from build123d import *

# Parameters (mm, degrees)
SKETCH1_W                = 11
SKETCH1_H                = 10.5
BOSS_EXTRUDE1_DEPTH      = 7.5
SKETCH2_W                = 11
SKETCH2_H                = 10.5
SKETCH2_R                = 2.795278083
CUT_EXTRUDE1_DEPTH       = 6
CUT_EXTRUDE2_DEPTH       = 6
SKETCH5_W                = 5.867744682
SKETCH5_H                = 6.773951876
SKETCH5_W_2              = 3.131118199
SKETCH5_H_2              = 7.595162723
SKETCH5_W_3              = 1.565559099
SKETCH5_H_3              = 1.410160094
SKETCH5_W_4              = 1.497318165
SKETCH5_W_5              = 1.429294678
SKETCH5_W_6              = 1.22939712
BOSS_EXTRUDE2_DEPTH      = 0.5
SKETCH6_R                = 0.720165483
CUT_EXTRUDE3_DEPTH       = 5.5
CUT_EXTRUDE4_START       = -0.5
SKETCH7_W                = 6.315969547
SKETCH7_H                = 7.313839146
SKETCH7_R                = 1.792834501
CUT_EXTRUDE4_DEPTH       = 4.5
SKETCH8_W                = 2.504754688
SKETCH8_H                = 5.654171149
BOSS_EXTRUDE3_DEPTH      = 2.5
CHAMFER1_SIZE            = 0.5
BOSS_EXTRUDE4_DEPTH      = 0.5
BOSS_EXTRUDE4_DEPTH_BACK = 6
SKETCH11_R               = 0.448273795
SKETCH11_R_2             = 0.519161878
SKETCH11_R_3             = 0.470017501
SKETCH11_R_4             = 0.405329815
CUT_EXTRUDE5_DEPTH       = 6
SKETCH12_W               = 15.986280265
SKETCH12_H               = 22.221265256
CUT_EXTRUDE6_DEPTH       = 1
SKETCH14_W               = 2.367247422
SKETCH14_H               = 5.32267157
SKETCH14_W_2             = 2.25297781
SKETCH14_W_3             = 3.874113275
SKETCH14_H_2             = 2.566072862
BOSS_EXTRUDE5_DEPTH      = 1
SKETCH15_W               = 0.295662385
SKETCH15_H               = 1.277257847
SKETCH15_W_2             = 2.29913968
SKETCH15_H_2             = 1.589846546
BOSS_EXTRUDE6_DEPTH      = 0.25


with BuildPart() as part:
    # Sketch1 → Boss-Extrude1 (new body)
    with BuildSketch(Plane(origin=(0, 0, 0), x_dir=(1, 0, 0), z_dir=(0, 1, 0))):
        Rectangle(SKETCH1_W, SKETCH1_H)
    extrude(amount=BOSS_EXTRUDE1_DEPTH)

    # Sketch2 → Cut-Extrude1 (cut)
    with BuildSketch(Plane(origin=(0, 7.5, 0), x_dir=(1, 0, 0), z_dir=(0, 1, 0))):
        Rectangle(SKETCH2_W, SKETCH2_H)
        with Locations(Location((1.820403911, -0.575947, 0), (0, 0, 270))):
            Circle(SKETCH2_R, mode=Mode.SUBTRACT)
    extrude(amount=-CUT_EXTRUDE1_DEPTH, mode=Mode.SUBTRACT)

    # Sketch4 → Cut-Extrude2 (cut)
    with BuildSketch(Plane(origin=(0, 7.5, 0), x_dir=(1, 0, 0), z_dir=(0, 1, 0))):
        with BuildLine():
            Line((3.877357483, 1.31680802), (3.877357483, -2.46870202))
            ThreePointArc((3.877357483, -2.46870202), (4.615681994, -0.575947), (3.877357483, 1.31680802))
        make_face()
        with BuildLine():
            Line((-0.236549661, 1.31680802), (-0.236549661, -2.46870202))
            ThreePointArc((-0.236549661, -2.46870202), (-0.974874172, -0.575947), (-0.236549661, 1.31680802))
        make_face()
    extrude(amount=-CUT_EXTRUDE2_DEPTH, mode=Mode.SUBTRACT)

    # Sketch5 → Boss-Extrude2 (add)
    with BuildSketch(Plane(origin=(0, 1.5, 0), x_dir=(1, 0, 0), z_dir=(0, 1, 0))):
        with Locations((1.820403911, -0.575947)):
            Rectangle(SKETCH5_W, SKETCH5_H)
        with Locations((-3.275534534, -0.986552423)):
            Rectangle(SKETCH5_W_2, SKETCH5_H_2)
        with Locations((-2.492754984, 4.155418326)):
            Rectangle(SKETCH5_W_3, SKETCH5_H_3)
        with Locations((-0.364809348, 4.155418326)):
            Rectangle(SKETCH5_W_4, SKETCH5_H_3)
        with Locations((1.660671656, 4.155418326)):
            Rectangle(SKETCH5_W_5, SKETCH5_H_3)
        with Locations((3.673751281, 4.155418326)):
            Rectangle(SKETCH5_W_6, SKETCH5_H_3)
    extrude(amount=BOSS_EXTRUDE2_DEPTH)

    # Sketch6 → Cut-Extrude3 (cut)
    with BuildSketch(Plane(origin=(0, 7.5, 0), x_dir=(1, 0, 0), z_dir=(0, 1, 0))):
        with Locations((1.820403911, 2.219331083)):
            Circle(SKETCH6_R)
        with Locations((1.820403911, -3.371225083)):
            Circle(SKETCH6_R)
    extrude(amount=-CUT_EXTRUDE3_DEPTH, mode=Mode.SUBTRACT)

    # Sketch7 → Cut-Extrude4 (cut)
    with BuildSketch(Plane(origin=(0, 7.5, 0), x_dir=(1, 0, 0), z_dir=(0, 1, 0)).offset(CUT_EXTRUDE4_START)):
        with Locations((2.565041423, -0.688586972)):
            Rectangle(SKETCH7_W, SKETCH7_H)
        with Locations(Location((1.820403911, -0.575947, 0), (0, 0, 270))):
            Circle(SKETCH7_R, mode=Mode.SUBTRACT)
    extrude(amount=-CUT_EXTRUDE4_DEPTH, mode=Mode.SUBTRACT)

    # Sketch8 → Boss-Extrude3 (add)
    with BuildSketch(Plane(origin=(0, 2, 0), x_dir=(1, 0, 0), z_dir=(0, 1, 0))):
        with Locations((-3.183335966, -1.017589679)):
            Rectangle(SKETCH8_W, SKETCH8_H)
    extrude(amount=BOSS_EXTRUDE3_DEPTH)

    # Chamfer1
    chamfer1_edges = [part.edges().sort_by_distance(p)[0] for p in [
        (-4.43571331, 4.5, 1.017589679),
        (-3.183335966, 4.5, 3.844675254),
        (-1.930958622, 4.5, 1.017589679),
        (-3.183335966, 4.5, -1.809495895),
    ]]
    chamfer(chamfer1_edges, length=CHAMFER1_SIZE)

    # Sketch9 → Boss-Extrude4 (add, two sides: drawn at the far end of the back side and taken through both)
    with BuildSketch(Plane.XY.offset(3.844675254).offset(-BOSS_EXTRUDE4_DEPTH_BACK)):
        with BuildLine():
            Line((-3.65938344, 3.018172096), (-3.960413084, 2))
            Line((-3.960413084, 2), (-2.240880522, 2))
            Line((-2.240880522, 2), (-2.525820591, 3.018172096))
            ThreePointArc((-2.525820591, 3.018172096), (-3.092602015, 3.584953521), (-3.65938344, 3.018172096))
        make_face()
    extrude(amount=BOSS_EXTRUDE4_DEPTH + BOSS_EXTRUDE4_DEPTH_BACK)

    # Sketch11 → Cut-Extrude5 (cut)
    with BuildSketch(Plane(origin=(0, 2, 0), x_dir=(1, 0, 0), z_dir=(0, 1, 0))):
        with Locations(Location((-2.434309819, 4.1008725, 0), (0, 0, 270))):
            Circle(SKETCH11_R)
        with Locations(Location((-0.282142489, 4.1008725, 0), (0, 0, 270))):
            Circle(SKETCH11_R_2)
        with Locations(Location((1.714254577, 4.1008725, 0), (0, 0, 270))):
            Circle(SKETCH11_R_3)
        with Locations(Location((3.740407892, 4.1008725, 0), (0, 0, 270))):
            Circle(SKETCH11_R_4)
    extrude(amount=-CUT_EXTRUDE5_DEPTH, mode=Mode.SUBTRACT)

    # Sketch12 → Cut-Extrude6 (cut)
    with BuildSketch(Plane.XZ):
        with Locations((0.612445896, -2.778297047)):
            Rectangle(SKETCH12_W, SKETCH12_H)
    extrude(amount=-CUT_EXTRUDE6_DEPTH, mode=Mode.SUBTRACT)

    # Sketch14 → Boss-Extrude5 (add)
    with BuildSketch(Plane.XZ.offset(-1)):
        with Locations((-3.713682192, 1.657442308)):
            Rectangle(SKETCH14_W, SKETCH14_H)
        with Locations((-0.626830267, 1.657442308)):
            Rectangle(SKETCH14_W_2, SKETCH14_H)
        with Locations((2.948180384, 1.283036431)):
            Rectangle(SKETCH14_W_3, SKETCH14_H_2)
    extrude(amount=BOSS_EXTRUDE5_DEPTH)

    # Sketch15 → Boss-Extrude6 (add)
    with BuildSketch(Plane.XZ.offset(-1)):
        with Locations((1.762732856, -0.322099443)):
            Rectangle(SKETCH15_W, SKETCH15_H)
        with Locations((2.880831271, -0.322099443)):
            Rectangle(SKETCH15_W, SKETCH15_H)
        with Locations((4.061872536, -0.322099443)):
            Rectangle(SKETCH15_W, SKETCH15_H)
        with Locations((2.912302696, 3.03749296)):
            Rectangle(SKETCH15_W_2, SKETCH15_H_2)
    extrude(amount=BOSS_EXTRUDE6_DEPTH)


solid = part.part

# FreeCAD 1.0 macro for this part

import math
import FreeCAD as App
import Part
import Sketcher
from FreeCAD import Vector


def edges_at(feature, points):
    """Names of the edges that pass closest to the given points."""
    edges = feature.Shape.Edges
    near = lambda p: min(range(len(edges)), key=lambda i: edges[i].distToShape(Part.Vertex(*p))[0])
    return sorted({f"Edge{near(p) + 1}" for p in points})


def add_polygon(sketch, points):
    """Adds a closed chain of lines whose ends are joined by coincident constraints."""
    first, n = sketch.GeometryCount, len(points)
    for a, b in zip(points, points[1:] + points[:1]):
        sketch.addGeometry(Part.LineSegment(App.Vector(*a, 0), App.Vector(*b, 0)), False)
    for i in range(n):
        sketch.addConstraint(Sketcher.Constraint("Coincident", first + i, 2, first + (i + 1) % n, 1))

doc = App.newDocument("Part")
body = doc.addObject("PartDesign::Body", "Body")

# Sketch on XZ plane
sketch1 = body.newObject("Sketcher::SketchObject", "Sketch")
sketch1.AttachmentSupport = (doc.getObject("XZ_Plane"), [""])
sketch1.MapMode = "FlatFace"
add_polygon(sketch1, [(-5.5, -5.25), (-5.5, 5.25), (5.5, 5.25), (5.5, -5.25)])  # lines 0-3
sketch1.addConstraint(Sketcher.Constraint("Vertical", 0))
sketch1.addConstraint(Sketcher.Constraint("Horizontal", 1))
sketch1.addConstraint(Sketcher.Constraint("Vertical", 2))
sketch1.addConstraint(Sketcher.Constraint("Horizontal", 3))
sketch1.addConstraint(Sketcher.Constraint("Symmetric", 0, 2, 2, 2, -1, 1))
sketch1.addConstraint(Sketcher.Constraint("DistanceX", 1, 1, 1, 2, 11.0))
sketch1.addConstraint(Sketcher.Constraint("DistanceY", 0, 1, 0, 2, 10.5))
pad1 = body.newObject("PartDesign::Pad", "Pad")
pad1.Profile = sketch1
pad1.Length = 7.5
pad1.Reversed = True

# Sketch on XZ plane
sketch2 = body.newObject("Sketcher::SketchObject", "Sketch001")
sketch2.AttachmentSupport = (doc.getObject("XZ_Plane"), [""])
sketch2.MapMode = "FlatFace"
sketch2.AttachmentOffset = App.Placement(Vector(0, 0, -7.5), App.Rotation())
add_polygon(sketch2, [(-5.5, -5.25), (-5.5, 5.25), (5.5, 5.25), (5.5, -5.25)])  # lines 0-3
sketch2.addGeometry(Part.Circle(Vector(1.820404, 0.575947, 0), Vector(0, 0, 1), 2.795278), False)  # 4
sketch2.addConstraint(Sketcher.Constraint("Vertical", 0))
sketch2.addConstraint(Sketcher.Constraint("Horizontal", 1))
sketch2.addConstraint(Sketcher.Constraint("Vertical", 2))
sketch2.addConstraint(Sketcher.Constraint("Horizontal", 3))
sketch2.addConstraint(Sketcher.Constraint("Symmetric", 0, 2, 2, 2, -1, 1))
sketch2.addConstraint(Sketcher.Constraint("DistanceX", 1, 1, 1, 2, 11.0))
sketch2.addConstraint(Sketcher.Constraint("DistanceY", 0, 1, 0, 2, 10.5))
sketch2.addConstraint(Sketcher.Constraint("Diameter", 4, 5.590556))
sketch2.addConstraint(Sketcher.Constraint("DistanceX", -1, 1, 4, 3, 1.820404))
sketch2.addConstraint(Sketcher.Constraint("DistanceY", -1, 1, 4, 3, 0.575947))
pocket1 = body.newObject("PartDesign::Pocket", "Pocket")
pocket1.Profile = sketch2
pocket1.Length = 6
pocket1.Reversed = True

# Sketch on XZ plane
sketch3 = body.newObject("Sketcher::SketchObject", "Sketch002")
sketch3.AttachmentSupport = (doc.getObject("XZ_Plane"), [""])
sketch3.MapMode = "FlatFace"
sketch3.AttachmentOffset = App.Placement(Vector(0, 0, -7.5), App.Rotation())
sketch3.addGeometry(Part.LineSegment(Vector(3.877357, -1.316808, 0), Vector(3.877357, 2.468702, 0)), False)
sketch3.addGeometry(Part.ArcOfCircle(Part.Circle(Vector(1.820404, 0.575947, 0), Vector(0, 0, 1), 2.795278), math.radians(-42.619452), math.radians(42.619452)), False)
sketch3.addGeometry(Part.LineSegment(Vector(-0.23655, 2.468702, 0), Vector(-0.23655, -1.316808, 0)), False)
sketch3.addGeometry(Part.ArcOfCircle(Part.Circle(Vector(1.820404, 0.575947, 0), Vector(0, 0, 1), 2.795278), math.radians(137.380548), math.radians(222.619452)), False)
sketch3.addConstraint(Sketcher.Constraint("Coincident", 0, 1, 1, 1))
sketch3.addConstraint(Sketcher.Constraint("Coincident", 1, 2, 0, 2))
sketch3.addConstraint(Sketcher.Constraint("Coincident", 2, 1, 3, 1))
sketch3.addConstraint(Sketcher.Constraint("Coincident", 3, 2, 2, 2))
sketch3.addConstraint(Sketcher.Constraint("Vertical", 0))
sketch3.addConstraint(Sketcher.Constraint("Vertical", 2))
sketch3.addConstraint(Sketcher.Constraint("Coincident", 3, 3, 1, 3))
sketch3.addConstraint(Sketcher.Constraint("Equal", 1, 3))
sketch3.addConstraint(Sketcher.Constraint("Horizontal", 1, 2, 2, 1))
sketch3.addConstraint(Sketcher.Constraint("Radius", 1, 2.795278))
sketch3.addConstraint(Sketcher.Constraint("DistanceY", 0, 1, 0, 2, 3.78551))
sketch3.addConstraint(Sketcher.Constraint("DistanceY", 0, 1, -1, 1, 1.316808))
sketch3.addConstraint(Sketcher.Constraint("DistanceX", 2, 1, -1, 1, 0.23655))
pocket2 = body.newObject("PartDesign::Pocket", "Pocket001")
pocket2.Profile = sketch3
pocket2.Length = 6
pocket2.Reversed = True

# Sketch on XZ plane
sketch4 = body.newObject("Sketcher::SketchObject", "Sketch003")
sketch4.AttachmentSupport = (doc.getObject("XZ_Plane"), [""])
sketch4.MapMode = "FlatFace"
sketch4.AttachmentOffset = App.Placement(Vector(0, 0, -1.5), App.Rotation())
add_polygon(sketch4, [(-1.113468, -2.811029), (-1.113468, 3.962923), (4.754276, 3.962923), (4.754276, -2.811029)])  # lines 0-3
add_polygon(sketch4, [(-4.841094, -2.811029), (-4.841094, 4.784134), (-1.709975, 4.784134), (-1.709975, -2.811029)])  # lines 4-7
add_polygon(sketch4, [(-3.275535, -4.860498), (-3.275535, -3.450338), (-1.709975, -3.450338), (-1.709975, -4.860498)])  # lines 8-11
add_polygon(sketch4, [(-1.113468, -4.860498), (-1.113468, -3.450338), (0.38385, -3.450338), (0.38385, -4.860498)])  # lines 12-15
add_polygon(sketch4, [(0.946024, -4.860498), (0.946024, -3.450338), (2.375319, -3.450338), (2.375319, -4.860498)])  # lines 16-19
add_polygon(sketch4, [(3.059053, -4.860498), (3.059053, -3.450338), (4.28845, -3.450338), (4.28845, -4.860498)])  # lines 20-23
sketch4.addConstraint(Sketcher.Constraint("Vertical", 0))
sketch4.addConstraint(Sketcher.Constraint("Horizontal", 1))
sketch4.addConstraint(Sketcher.Constraint("Vertical", 2))
sketch4.addConstraint(Sketcher.Constraint("Horizontal", 3))
sketch4.addConstraint(Sketcher.Constraint("Vertical", 4))
sketch4.addConstraint(Sketcher.Constraint("Horizontal", 5))
sketch4.addConstraint(Sketcher.Constraint("Vertical", 6))
sketch4.addConstraint(Sketcher.Constraint("Horizontal", 7))
sketch4.addConstraint(Sketcher.Constraint("Vertical", 8))
sketch4.addConstraint(Sketcher.Constraint("Horizontal", 9))
sketch4.addConstraint(Sketcher.Constraint("Vertical", 10))
sketch4.addConstraint(Sketcher.Constraint("Horizontal", 11))
sketch4.addConstraint(Sketcher.Constraint("Vertical", 12))
sketch4.addConstraint(Sketcher.Constraint("Horizontal", 13))
sketch4.addConstraint(Sketcher.Constraint("Vertical", 14))
sketch4.addConstraint(Sketcher.Constraint("Horizontal", 15))
sketch4.addConstraint(Sketcher.Constraint("Vertical", 16))
sketch4.addConstraint(Sketcher.Constraint("Horizontal", 17))
sketch4.addConstraint(Sketcher.Constraint("Vertical", 18))
sketch4.addConstraint(Sketcher.Constraint("Horizontal", 19))
sketch4.addConstraint(Sketcher.Constraint("Vertical", 20))
sketch4.addConstraint(Sketcher.Constraint("Horizontal", 21))
sketch4.addConstraint(Sketcher.Constraint("Vertical", 22))
sketch4.addConstraint(Sketcher.Constraint("Horizontal", 23))
sketch4.addConstraint(Sketcher.Constraint("Horizontal", 3, 2, 6, 2))
sketch4.addConstraint(Sketcher.Constraint("Horizontal", 9, 2, 12, 2))
sketch4.addConstraint(Sketcher.Constraint("Horizontal", 11, 2, 14, 2))
sketch4.addConstraint(Sketcher.Constraint("Horizontal", 13, 2, 16, 2))
sketch4.addConstraint(Sketcher.Constraint("Horizontal", 15, 2, 18, 2))
sketch4.addConstraint(Sketcher.Constraint("Horizontal", 17, 2, 20, 2))
sketch4.addConstraint(Sketcher.Constraint("Horizontal", 19, 2, 22, 2))
sketch4.addConstraint(Sketcher.Constraint("Vertical", 6, 2, 9, 2))
sketch4.addConstraint(Sketcher.Constraint("Vertical", 3, 2, 12, 2))
sketch4.addConstraint(Sketcher.Constraint("DistanceX", 5, 1, 5, 2, 3.131118))
sketch4.addConstraint(Sketcher.Constraint("DistanceX", 9, 1, 9, 2, 1.565559))
sketch4.addConstraint(Sketcher.Constraint("DistanceX", 13, 1, 13, 2, 1.497318))
sketch4.addConstraint(Sketcher.Constraint("DistanceY", 0, 1, 0, 2, 6.773952))
sketch4.addConstraint(Sketcher.Constraint("DistanceY", 8, 1, 8, 2, 1.41016))
sketch4.addConstraint(Sketcher.Constraint("DistanceY", 10, 2, -1, 1, 4.860498))
sketch4.addConstraint(Sketcher.Constraint("DistanceX", 1, 1, 1, 2, 5.867745))
sketch4.addConstraint(Sketcher.Constraint("DistanceX", 17, 1, 17, 2, 1.429295))
sketch4.addConstraint(Sketcher.Constraint("DistanceX", 21, 1, 21, 2, 1.229397))
sketch4.addConstraint(Sketcher.Constraint("DistanceY", 4, 1, 4, 2, 7.595163))
sketch4.addConstraint(Sketcher.Constraint("DistanceX", 0, 2, -1, 1, 1.113468))
sketch4.addConstraint(Sketcher.Constraint("DistanceY", 2, 2, -1, 1, 2.811029))
sketch4.addConstraint(Sketcher.Constraint("DistanceX", -1, 1, 17, 2, 2.375319))
sketch4.addConstraint(Sketcher.Constraint("DistanceX", -1, 1, 21, 2, 4.28845))
sketch4.addConstraint(Sketcher.Constraint("DistanceX", 4, 2, 1, 2, 9.59537))
pad2 = body.newObject("PartDesign::Pad", "Pad001")
pad2.Profile = sketch4
pad2.Length = 0.5
pad2.Reversed = True

# Sketch on XZ plane
sketch5 = body.newObject("Sketcher::SketchObject", "Sketch004")
sketch5.AttachmentSupport = (doc.getObject("XZ_Plane"), [""])
sketch5.MapMode = "FlatFace"
sketch5.AttachmentOffset = App.Placement(Vector(0, 0, -7.5), App.Rotation())
sketch5.addGeometry(Part.Circle(Vector(1.820404, -2.219331, 0), Vector(0, 0, 1), 0.720165), False)
sketch5.addGeometry(Part.Circle(Vector(1.820404, 3.371225, 0), Vector(0, 0, 1), 0.720165), False)
sketch5.addConstraint(Sketcher.Constraint("Equal", 0, 1))
sketch5.addConstraint(Sketcher.Constraint("Vertical", 0, 3, 1, 3))
sketch5.addConstraint(Sketcher.Constraint("Diameter", 0, 1.440331))
sketch5.addConstraint(Sketcher.Constraint("DistanceY", 0, 3, -1, 1, 2.219331))
sketch5.addConstraint(Sketcher.Constraint("DistanceX", -1, 1, 0, 3, 1.820404))
sketch5.addConstraint(Sketcher.Constraint("DistanceY", -1, 1, 1, 3, 3.371225))
pocket3 = body.newObject("PartDesign::Pocket", "Pocket002")
pocket3.Profile = sketch5
pocket3.Length = 5.5
pocket3.Reversed = True

# Sketch on XZ plane
sketch6 = body.newObject("Sketcher::SketchObject", "Sketch005")
sketch6.AttachmentSupport = (doc.getObject("XZ_Plane"), [""])
sketch6.MapMode = "FlatFace"
sketch6.AttachmentOffset = App.Placement(Vector(0, 0, -7), App.Rotation())
add_polygon(sketch6, [(-0.592943, -2.968333), (-0.592943, 4.345507), (5.723026, 4.345507), (5.723026, -2.968333)])  # lines 0-3
sketch6.addGeometry(Part.Circle(Vector(1.820404, 0.575947, 0), Vector(0, 0, 1), 1.792835), False)  # 4
sketch6.addConstraint(Sketcher.Constraint("Vertical", 0))
sketch6.addConstraint(Sketcher.Constraint("Horizontal", 1))
sketch6.addConstraint(Sketcher.Constraint("Vertical", 2))
sketch6.addConstraint(Sketcher.Constraint("Horizontal", 3))
sketch6.addConstraint(Sketcher.Constraint("Diameter", 4, 3.585669))
sketch6.addConstraint(Sketcher.Constraint("DistanceX", 1, 1, 1, 2, 6.31597))
sketch6.addConstraint(Sketcher.Constraint("DistanceY", 0, 1, 0, 2, 7.313839))
sketch6.addConstraint(Sketcher.Constraint("DistanceY", 4, 3, 0, 2, 3.76956))
sketch6.addConstraint(Sketcher.Constraint("DistanceX", -1, 1, 4, 3, 1.820404))
sketch6.addConstraint(Sketcher.Constraint("DistanceY", -1, 1, 4, 3, 0.575947))
sketch6.addConstraint(Sketcher.Constraint("DistanceX", 0, 2, -1, 1, 0.592943))
pocket4 = body.newObject("PartDesign::Pocket", "Pocket003")
pocket4.Profile = sketch6
pocket4.Length = 4.5
pocket4.Reversed = True

# Sketch on XZ plane
sketch7 = body.newObject("Sketcher::SketchObject", "Sketch006")
sketch7.AttachmentSupport = (doc.getObject("XZ_Plane"), [""])
sketch7.MapMode = "FlatFace"
sketch7.AttachmentOffset = App.Placement(Vector(0, 0, -2), App.Rotation())
add_polygon(sketch7, [(-4.435713, -1.809496), (-4.435713, 3.844675), (-1.930959, 3.844675), (-1.930959, -1.809496)])  # lines 0-3
sketch7.addConstraint(Sketcher.Constraint("Vertical", 0))
sketch7.addConstraint(Sketcher.Constraint("Horizontal", 1))
sketch7.addConstraint(Sketcher.Constraint("Vertical", 2))
sketch7.addConstraint(Sketcher.Constraint("Horizontal", 3))
sketch7.addConstraint(Sketcher.Constraint("DistanceY", 0, 1, 0, 2, 5.654171))
sketch7.addConstraint(Sketcher.Constraint("DistanceX", 1, 1, 1, 2, 2.504755))
sketch7.addConstraint(Sketcher.Constraint("DistanceX", 1, 2, -1, 1, 1.930959))
sketch7.addConstraint(Sketcher.Constraint("DistanceY", -1, 1, 0, 2, 3.844675))
pad3 = body.newObject("PartDesign::Pad", "Pad002")
pad3.Profile = sketch7
pad3.Length = 2.5
pad3.Reversed = True
doc.recompute()

chamfer = body.newObject("PartDesign::Chamfer", "Chamfer")
chamfer.Base = (pad3, edges_at(pad3, [
    (-4.436, 4.5, 1.018),
    (-3.183, 4.5, 3.845),
    (-1.931, 4.5, 1.018),
    (-3.183, 4.5, -1.809),
]))
chamfer.Size = 0.5

# Sketch on XY plane
sketch8 = body.newObject("Sketcher::SketchObject", "Sketch007")
sketch8.AttachmentSupport = (doc.getObject("XY_Plane"), [""])
sketch8.MapMode = "FlatFace"
sketch8.AttachmentOffset = App.Placement(Vector(0, 0, 3.844675), App.Rotation())
sketch8.addGeometry(Part.LineSegment(Vector(-3.659383, 3.018172, 0), Vector(-3.960413, 2, 0)), False)
sketch8.addGeometry(Part.LineSegment(Vector(-3.960413, 2, 0), Vector(-2.240881, 2, 0)), False)
sketch8.addGeometry(Part.LineSegment(Vector(-2.240881, 2, 0), Vector(-2.525821, 3.018172, 0)), False)
sketch8.addGeometry(Part.ArcOfCircle(Part.Circle(Vector(-3.092602, 3.018172, 0), Vector(0, 0, 1), 0.566781), math.radians(0), math.radians(180)), False)
sketch8.addConstraint(Sketcher.Constraint("Coincident", 0, 2, 1, 1))
sketch8.addConstraint(Sketcher.Constraint("Coincident", 1, 2, 2, 1))
sketch8.addConstraint(Sketcher.Constraint("Coincident", 2, 2, 3, 1))
sketch8.addConstraint(Sketcher.Constraint("Coincident", 3, 2, 0, 1))
sketch8.addConstraint(Sketcher.Constraint("Horizontal", 1))
sketch8.addConstraint(Sketcher.Constraint("Horizontal", 3, 3, 2, 2))
sketch8.addConstraint(Sketcher.Constraint("Horizontal", 2, 2, 3, 2))
sketch8.addConstraint(Sketcher.Constraint("DistanceY", -1, 1, 0, 2, 2.0))
sketch8.addConstraint(Sketcher.Constraint("Radius", 3, 0.566781))
sketch8.addConstraint(Sketcher.Constraint("Distance", 0, 1.061741))
sketch8.addConstraint(Sketcher.Constraint("Distance", 2, 1.057291))
sketch8.addConstraint(Sketcher.Constraint("DistanceX", 1, 1, 1, 2, 1.719533))
sketch8.addConstraint(Sketcher.Constraint("DistanceX", 1, 2, -1, 1, 2.240881))
pad4 = body.newObject("PartDesign::Pad", "Pad003")
pad4.Profile = sketch8
pad4.Type = "TwoLengths"
pad4.Length = 0.5
pad4.Length2 = 6

# Sketch on XZ plane
sketch9 = body.newObject("Sketcher::SketchObject", "Sketch008")
sketch9.AttachmentSupport = (doc.getObject("XZ_Plane"), [""])
sketch9.MapMode = "FlatFace"
sketch9.AttachmentOffset = App.Placement(Vector(0, 0, -2), App.Rotation())
sketch9.addGeometry(Part.Circle(Vector(-2.43431, -4.100873, 0), Vector(0, 0, 1), 0.448274), False)
sketch9.addGeometry(Part.Circle(Vector(-0.282142, -4.100873, 0), Vector(0, 0, 1), 0.519162), False)
sketch9.addGeometry(Part.Circle(Vector(1.714255, -4.100873, 0), Vector(0, 0, 1), 0.470018), False)
sketch9.addGeometry(Part.Circle(Vector(3.740408, -4.100873, 0), Vector(0, 0, 1), 0.40533), False)
sketch9.addConstraint(Sketcher.Constraint("Horizontal", 0, 3, 1, 3))
sketch9.addConstraint(Sketcher.Constraint("Horizontal", 1, 3, 2, 3))
sketch9.addConstraint(Sketcher.Constraint("Horizontal", 2, 3, 3, 3))
sketch9.addConstraint(Sketcher.Constraint("Diameter", 3, 0.81066))
sketch9.addConstraint(Sketcher.Constraint("Diameter", 0, 0.896548))
sketch9.addConstraint(Sketcher.Constraint("Diameter", 1, 1.038324))
sketch9.addConstraint(Sketcher.Constraint("Diameter", 2, 0.940035))
sketch9.addConstraint(Sketcher.Constraint("DistanceX", 0, 3, -1, 1, 2.43431))
sketch9.addConstraint(Sketcher.Constraint("DistanceX", 1, 3, 3, 3, 4.02255))
sketch9.addConstraint(Sketcher.Constraint("DistanceY", 0, 3, -1, 1, 4.100873))
sketch9.addConstraint(Sketcher.Constraint("DistanceX", 1, 3, -1, 1, 0.282142))
sketch9.addConstraint(Sketcher.Constraint("DistanceX", -1, 1, 2, 3, 1.714255))
pocket5 = body.newObject("PartDesign::Pocket", "Pocket004")
pocket5.Profile = sketch9
pocket5.Length = 6
pocket5.Reversed = True

# Sketch on XZ plane
sketch10 = body.newObject("Sketcher::SketchObject", "Sketch009")
sketch10.AttachmentSupport = (doc.getObject("XZ_Plane"), [""])
sketch10.MapMode = "FlatFace"
add_polygon(sketch10, [(-7.380694, 8.332336), (-7.380694, -13.88893), (8.605586, -13.88893), (8.605586, 8.332336)])  # lines 0-3
sketch10.addConstraint(Sketcher.Constraint("Vertical", 0))
sketch10.addConstraint(Sketcher.Constraint("Horizontal", 1))
sketch10.addConstraint(Sketcher.Constraint("Vertical", 2))
sketch10.addConstraint(Sketcher.Constraint("Horizontal", 3))
sketch10.addConstraint(Sketcher.Constraint("DistanceX", 1, 1, 1, 2, 15.98628))
sketch10.addConstraint(Sketcher.Constraint("DistanceY", 0, 2, 0, 1, 22.221265))
sketch10.addConstraint(Sketcher.Constraint("DistanceY", 0, 2, -1, 1, 13.88893))
sketch10.addConstraint(Sketcher.Constraint("DistanceX", 0, 2, -1, 1, 7.380694))
pocket6 = body.newObject("PartDesign::Pocket", "Pocket005")
pocket6.Profile = sketch10
pocket6.Length = 1

# Sketch on XZ plane
sketch11 = body.newObject("Sketcher::SketchObject", "Sketch010")
sketch11.AttachmentSupport = (doc.getObject("XZ_Plane"), [""])
sketch11.MapMode = "FlatFace"
sketch11.AttachmentOffset = App.Placement(Vector(0, 0, -1), App.Rotation())
add_polygon(sketch11, [(-4.897306, 4.318778), (-4.897306, -1.003893), (-2.530058, -1.003893), (-2.530058, 4.318778)])  # lines 0-3
add_polygon(sketch11, [(-1.753319, 4.318778), (-1.753319, -1.003893), (0.499659, -1.003893), (0.499659, 4.318778)])  # lines 4-7
add_polygon(sketch11, [(1.011124, 2.566073), (1.011124, 0), (4.885237, 0), (4.885237, 2.566073)])  # lines 8-11
sketch11.addConstraint(Sketcher.Constraint("Vertical", 0))
sketch11.addConstraint(Sketcher.Constraint("Horizontal", 1))
sketch11.addConstraint(Sketcher.Constraint("Vertical", 2))
sketch11.addConstraint(Sketcher.Constraint("Horizontal", 3))
sketch11.addConstraint(Sketcher.Constraint("Vertical", 4))
sketch11.addConstraint(Sketcher.Constraint("Horizontal", 5))
sketch11.addConstraint(Sketcher.Constraint("Vertical", 6))
sketch11.addConstraint(Sketcher.Constraint("Horizontal", 7))
sketch11.addConstraint(Sketcher.Constraint("Vertical", 8))
sketch11.addConstraint(Sketcher.Constraint("Horizontal", 9))
sketch11.addConstraint(Sketcher.Constraint("Vertical", 10))
sketch11.addConstraint(Sketcher.Constraint("Horizontal", 11))
sketch11.addConstraint(Sketcher.Constraint("PointOnObject", 8, 2, -1))
sketch11.addConstraint(Sketcher.Constraint("Horizontal", 1, 2, 4, 2))
sketch11.addConstraint(Sketcher.Constraint("Horizontal", 3, 2, 6, 2))
sketch11.addConstraint(Sketcher.Constraint("DistanceY", 0, 2, 0, 1, 5.322672))
sketch11.addConstraint(Sketcher.Constraint("DistanceX", 1, 1, 1, 2, 2.367247))
sketch11.addConstraint(Sketcher.Constraint("DistanceX", 5, 1, 5, 2, 2.252978))
sketch11.addConstraint(Sketcher.Constraint("DistanceX", 9, 1, 9, 2, 3.874113))
sketch11.addConstraint(Sketcher.Constraint("DistanceY", 8, 2, 8, 1, 2.566073))
sketch11.addConstraint(Sketcher.Constraint("DistanceX", 1, 2, -1, 1, 2.530058))
sketch11.addConstraint(Sketcher.Constraint("DistanceY", -1, 1, 2, 2, 4.318778))
sketch11.addConstraint(Sketcher.Constraint("DistanceX", 4, 2, -1, 1, 1.753319))
sketch11.addConstraint(Sketcher.Constraint("DistanceX", 5, 2, 9, 2, 4.385578))
pad5 = body.newObject("PartDesign::Pad", "Pad004")
pad5.Profile = sketch11
pad5.Length = 1

# Sketch on XZ plane
sketch12 = body.newObject("Sketcher::SketchObject", "Sketch011")
sketch12.AttachmentSupport = (doc.getObject("XZ_Plane"), [""])
sketch12.MapMode = "FlatFace"
sketch12.AttachmentOffset = App.Placement(Vector(0, 0, -1), App.Rotation())
add_polygon(sketch12, [(1.614902, 0.316529), (1.614902, -0.960728), (1.910564, -0.960728), (1.910564, 0.316529)])  # lines 0-3
add_polygon(sketch12, [(2.733, 0.316529), (2.733, -0.960728), (3.028662, -0.960728), (3.028662, 0.316529)])  # lines 4-7
add_polygon(sketch12, [(3.914041, 0.316529), (3.914041, -0.960728), (4.209704, -0.960728), (4.209704, 0.316529)])  # lines 8-11
add_polygon(sketch12, [(1.762733, 3.832416), (1.762733, 2.24257), (4.061873, 2.24257), (4.061873, 3.832416)])  # lines 12-15
sketch12.addConstraint(Sketcher.Constraint("Vertical", 0))
sketch12.addConstraint(Sketcher.Constraint("Horizontal", 1))
sketch12.addConstraint(Sketcher.Constraint("Vertical", 2))
sketch12.addConstraint(Sketcher.Constraint("Horizontal", 3))
sketch12.addConstraint(Sketcher.Constraint("Vertical", 4))
sketch12.addConstraint(Sketcher.Constraint("Horizontal", 5))
sketch12.addConstraint(Sketcher.Constraint("Vertical", 6))
sketch12.addConstraint(Sketcher.Constraint("Horizontal", 7))
sketch12.addConstraint(Sketcher.Constraint("Vertical", 8))
sketch12.addConstraint(Sketcher.Constraint("Horizontal", 9))
sketch12.addConstraint(Sketcher.Constraint("Vertical", 10))
sketch12.addConstraint(Sketcher.Constraint("Horizontal", 11))
sketch12.addConstraint(Sketcher.Constraint("Vertical", 12))
sketch12.addConstraint(Sketcher.Constraint("Horizontal", 13))
sketch12.addConstraint(Sketcher.Constraint("Vertical", 14))
sketch12.addConstraint(Sketcher.Constraint("Horizontal", 15))
sketch12.addConstraint(Sketcher.Constraint("Horizontal", 1, 2, 4, 2))
sketch12.addConstraint(Sketcher.Constraint("Horizontal", 3, 2, 6, 2))
sketch12.addConstraint(Sketcher.Constraint("Horizontal", 5, 2, 8, 2))
sketch12.addConstraint(Sketcher.Constraint("Horizontal", 7, 2, 10, 2))
sketch12.addConstraint(Sketcher.Constraint("Equal", 3, 5))
sketch12.addConstraint(Sketcher.Constraint("Equal", 7, 9))
sketch12.addConstraint(Sketcher.Constraint("DistanceX", -1, 1, 4, 2, 2.733))
sketch12.addConstraint(Sketcher.Constraint("DistanceX", 13, 1, 13, 2, 2.29914))
sketch12.addConstraint(Sketcher.Constraint("DistanceX", -1, 1, 0, 2, 1.614902))
sketch12.addConstraint(Sketcher.Constraint("DistanceX", 1, 1, 1, 2, 0.295662))
sketch12.addConstraint(Sketcher.Constraint("DistanceY", 0, 2, 0, 1, 1.277258))
sketch12.addConstraint(Sketcher.Constraint("DistanceY", 12, 2, 12, 1, 1.589847))
sketch12.addConstraint(Sketcher.Constraint("DistanceY", 0, 2, -1, 1, 0.960728))
sketch12.addConstraint(Sketcher.Constraint("DistanceX", -1, 1, 8, 2, 3.914041))
sketch12.addConstraint(Sketcher.Constraint("DistanceY", -1, 1, 12, 2, 2.24257))
sketch12.addConstraint(Sketcher.Constraint("DistanceX", 12, 2, 2, 2, 0.147831))
pad6 = body.newObject("PartDesign::Pad", "Pad005")
pad6.Profile = sketch12
pad6.Length = 0.25

doc.recompute()
